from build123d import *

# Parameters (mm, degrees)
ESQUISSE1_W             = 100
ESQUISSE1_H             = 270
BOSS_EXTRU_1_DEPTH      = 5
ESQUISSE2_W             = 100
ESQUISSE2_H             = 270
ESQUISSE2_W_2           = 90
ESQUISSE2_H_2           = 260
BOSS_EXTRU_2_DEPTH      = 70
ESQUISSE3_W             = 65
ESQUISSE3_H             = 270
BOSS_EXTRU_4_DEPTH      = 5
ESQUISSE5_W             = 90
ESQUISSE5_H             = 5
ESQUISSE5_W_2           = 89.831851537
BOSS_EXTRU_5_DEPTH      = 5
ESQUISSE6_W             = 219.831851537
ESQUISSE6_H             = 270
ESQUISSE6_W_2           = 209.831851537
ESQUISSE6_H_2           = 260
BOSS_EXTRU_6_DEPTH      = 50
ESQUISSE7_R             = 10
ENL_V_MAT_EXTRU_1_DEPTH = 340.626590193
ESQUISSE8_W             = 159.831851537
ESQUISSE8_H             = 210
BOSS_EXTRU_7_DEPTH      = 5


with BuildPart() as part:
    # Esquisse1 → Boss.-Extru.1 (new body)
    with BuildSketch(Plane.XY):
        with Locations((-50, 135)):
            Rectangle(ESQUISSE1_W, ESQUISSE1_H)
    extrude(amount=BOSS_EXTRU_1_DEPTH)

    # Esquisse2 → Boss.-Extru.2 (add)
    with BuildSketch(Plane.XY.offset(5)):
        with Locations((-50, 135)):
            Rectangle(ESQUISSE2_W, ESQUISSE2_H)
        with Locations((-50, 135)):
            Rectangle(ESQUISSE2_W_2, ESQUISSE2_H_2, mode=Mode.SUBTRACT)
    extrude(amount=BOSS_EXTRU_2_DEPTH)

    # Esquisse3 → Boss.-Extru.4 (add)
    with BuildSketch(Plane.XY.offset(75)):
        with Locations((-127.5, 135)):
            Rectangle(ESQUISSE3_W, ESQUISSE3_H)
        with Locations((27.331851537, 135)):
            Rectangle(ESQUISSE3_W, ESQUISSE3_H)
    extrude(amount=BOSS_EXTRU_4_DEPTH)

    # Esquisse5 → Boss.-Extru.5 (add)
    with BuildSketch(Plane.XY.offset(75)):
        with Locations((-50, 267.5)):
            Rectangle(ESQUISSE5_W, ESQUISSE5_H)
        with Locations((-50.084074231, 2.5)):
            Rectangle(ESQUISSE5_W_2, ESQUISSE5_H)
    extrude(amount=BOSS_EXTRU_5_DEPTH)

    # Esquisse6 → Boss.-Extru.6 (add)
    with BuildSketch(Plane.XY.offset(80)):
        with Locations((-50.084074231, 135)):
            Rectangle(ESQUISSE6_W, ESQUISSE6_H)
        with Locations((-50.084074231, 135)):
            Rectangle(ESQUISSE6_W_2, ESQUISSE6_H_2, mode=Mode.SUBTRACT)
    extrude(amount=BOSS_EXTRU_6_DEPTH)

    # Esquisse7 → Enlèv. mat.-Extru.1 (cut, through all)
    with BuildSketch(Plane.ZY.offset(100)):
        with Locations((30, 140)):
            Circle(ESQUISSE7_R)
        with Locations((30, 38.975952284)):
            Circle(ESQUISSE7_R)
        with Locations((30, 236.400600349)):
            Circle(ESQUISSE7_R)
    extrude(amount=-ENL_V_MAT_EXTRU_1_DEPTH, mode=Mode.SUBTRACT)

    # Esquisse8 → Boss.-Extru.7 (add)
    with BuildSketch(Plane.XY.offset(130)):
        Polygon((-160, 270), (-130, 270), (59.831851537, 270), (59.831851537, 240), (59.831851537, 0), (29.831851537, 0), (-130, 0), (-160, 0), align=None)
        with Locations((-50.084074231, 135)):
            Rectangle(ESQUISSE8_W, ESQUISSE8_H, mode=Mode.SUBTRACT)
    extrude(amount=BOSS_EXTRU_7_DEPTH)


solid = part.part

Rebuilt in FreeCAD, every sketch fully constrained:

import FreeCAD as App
import Part
import Sketcher
from FreeCAD import Vector
Q = App.Units.Quantity


def add_polygon(sketch, points):
    """Adds a closed chain of lines whose ends are joined by coincident constraints."""
    first, n = sketch.GeometryCount, len(points)
    for a, b in zip(points, points[1:] + points[:1]):
        sketch.addGeometry(Part.LineSegment(App.Vector(*a, 0), App.Vector(*b, 0)), False)
    for i in range(n):
        sketch.addConstraint(Sketcher.Constraint("Coincident", first + i, 2, first + (i + 1) % n, 1))

doc = App.newDocument("Part")
body = doc.addObject("PartDesign::Body", "Body")

# Sketch on XY plane
sketch1 = body.newObject("Sketcher::SketchObject", "Sketch")
sketch1.AttachmentSupport = (doc.getObject("XY_Plane"), [""])
sketch1.MapMode = "FlatFace"
add_polygon(sketch1, [(-100, 270), (-100, 0), (0, 0), (0, 270)])  # lines 0-3
sketch1.addConstraint(Sketcher.Constraint("Vertical", 0))
sketch1.addConstraint(Sketcher.Constraint("Horizontal", 1))
sketch1.addConstraint(Sketcher.Constraint("Vertical", 2))
sketch1.addConstraint(Sketcher.Constraint("Horizontal", 3))
sketch1.addConstraint(Sketcher.Constraint("Coincident", 1, 2, -1, 1))
sketch1.addConstraint(Sketcher.Constraint("DistanceX", 1, 1, 1, 2, Q("100 mm")))
sketch1.addConstraint(Sketcher.Constraint("DistanceY", 0, 2, 0, 1, Q("270 mm")))
pad1 = body.newObject("PartDesign::Pad", "Pad")
pad1.Profile = sketch1
pad1.Length = 5

# Sketch on XY plane
sketch2 = body.newObject("Sketcher::SketchObject", "Sketch001")
sketch2.AttachmentSupport = (doc.getObject("XY_Plane"), [""])
sketch2.MapMode = "FlatFace"
sketch2.AttachmentOffset = App.Placement(Vector(0, 0, 5), App.Rotation())
add_polygon(sketch2, [(-100, 270), (-100, 0), (0, 0), (0, 270)])  # lines 0-3
add_polygon(sketch2, [(-5, 5), (-95, 5), (-95, 265), (-5, 265)])  # lines 4-7
sketch2.addConstraint(Sketcher.Constraint("Vertical", 0))
sketch2.addConstraint(Sketcher.Constraint("Horizontal", 1))
sketch2.addConstraint(Sketcher.Constraint("Vertical", 2))
sketch2.addConstraint(Sketcher.Constraint("Horizontal", 3))
sketch2.addConstraint(Sketcher.Constraint("Horizontal", 4))
sketch2.addConstraint(Sketcher.Constraint("Vertical", 5))
sketch2.addConstraint(Sketcher.Constraint("Horizontal", 6))
sketch2.addConstraint(Sketcher.Constraint("Vertical", 7))
sketch2.addConstraint(Sketcher.Constraint("Coincident", 1, 2, -1, 1))
sketch2.addConstraint(Sketcher.Constraint("DistanceX", 1, 1, 1, 2, Q("100 mm")))
sketch2.addConstraint(Sketcher.Constraint("DistanceX", 4, 2, 4, 1, Q("90 mm")))
sketch2.addConstraint(Sketcher.Constraint("DistanceY", 0, 2, 0, 1, Q("270 mm")))
sketch2.addConstraint(Sketcher.Constraint("DistanceY", 5, 1, 5, 2, Q("260 mm")))
sketch2.addConstraint(Sketcher.Constraint("DistanceX", 4, 2, -1, 1, Q("95 mm")))
sketch2.addConstraint(Sketcher.Constraint("DistanceY", -1, 1, 4, 2, Q("5 mm")))
pad2 = body.newObject("PartDesign::Pad", "Pad001")
pad2.Profile = sketch2
pad2.Length = 70

# Sketch on XY plane
sketch3 = body.newObject("Sketcher::SketchObject", "Sketch002")
sketch3.AttachmentSupport = (doc.getObject("XY_Plane"), [""])
sketch3.MapMode = "FlatFace"
sketch3.AttachmentOffset = App.Placement(Vector(0, 0, 75), App.Rotation())
add_polygon(sketch3, [(-160, 270), (-160, 0), (-95, 0), (-95, 270)])  # lines 0-3
add_polygon(sketch3, [(-5.168148, 270), (-5.168148, 0), (59.831852, 0), (59.831852, 270)])  # lines 4-7
sketch3.addConstraint(Sketcher.Constraint("Vertical", 0))
sketch3.addConstraint(Sketcher.Constraint("Horizontal", 1))
sketch3.addConstraint(Sketcher.Constraint("Vertical", 2))
sketch3.addConstraint(Sketcher.Constraint("Horizontal", 3))
sketch3.addConstraint(Sketcher.Constraint("Vertical", 4))
sketch3.addConstraint(Sketcher.Constraint("Horizontal", 5))
sketch3.addConstraint(Sketcher.Constraint("Vertical", 6))
sketch3.addConstraint(Sketcher.Constraint("Horizontal", 7))
sketch3.addConstraint(Sketcher.Constraint("PointOnObject", 0, 2, -1))
sketch3.addConstraint(Sketcher.Constraint("PointOnObject", 4, 2, -1))
sketch3.addConstraint(Sketcher.Constraint("Horizontal", 3, 2, 6, 2))
sketch3.addConstraint(Sketcher.Constraint("Equal", 3, 5))
sketch3.addConstraint(Sketcher.Constraint("DistanceX", 1, 1, 1, 2, Q("65 mm")))
sketch3.addConstraint(Sketcher.Constraint("DistanceY", 0, 2, 0, 1, Q("270 mm")))
sketch3.addConstraint(Sketcher.Constraint("DistanceX", 0, 2, -1, 1, Q("160 mm")))
sketch3.addConstraint(Sketcher.Constraint("DistanceX", 4, 2, -1, 1, Q("5.168148 mm")))
pad3 = body.newObject("PartDesign::Pad", "Pad002")
pad3.Profile = sketch3
pad3.Length = 5

# Sketch on XY plane
sketch4 = body.newObject("Sketcher::SketchObject", "Sketch003")
sketch4.AttachmentSupport = (doc.getObject("XY_Plane"), [""])
sketch4.MapMode = "FlatFace"
sketch4.AttachmentOffset = App.Placement(Vector(0, 0, 75), App.Rotation())
add_polygon(sketch4, [(-95, 270), (-95, 265), (-5, 265), (-5, 270)])  # lines 0-3
add_polygon(sketch4, [(-95, 5), (-95, 0), (-5.168148, 0), (-5.168148, 5)])  # lines 4-7
sketch4.addConstraint(Sketcher.Constraint("Vertical", 0))
sketch4.addConstraint(Sketcher.Constraint("Horizontal", 1))
sketch4.addConstraint(Sketcher.Constraint("Vertical", 2))
sketch4.addConstraint(Sketcher.Constraint("Horizontal", 3))
sketch4.addConstraint(Sketcher.Constraint("Vertical", 4))
sketch4.addConstraint(Sketcher.Constraint("Horizontal", 5))
sketch4.addConstraint(Sketcher.Constraint("Vertical", 6))
sketch4.addConstraint(Sketcher.Constraint("Horizontal", 7))
sketch4.addConstraint(Sketcher.Constraint("PointOnObject", 4, 2, -1))
sketch4.addConstraint(Sketcher.Constraint("Vertical", 3, 2, 4, 2))
sketch4.addConstraint(Sketcher.Constraint("Equal", 2, 4))
sketch4.addConstraint(Sketcher.Constraint("DistanceX", 1, 1, 1, 2, Q("90 mm")))
sketch4.addConstraint(Sketcher.Constraint("DistanceY", 0, 2, 0, 1, Q("5 mm")))
sketch4.addConstraint(Sketcher.Constraint("DistanceX", 0, 2, -1, 1, Q("95 mm")))
sketch4.addConstraint(Sketcher.Constraint("DistanceY", -1, 1, 0, 2, Q("265 mm")))
sketch4.addConstraint(Sketcher.Constraint("DistanceX", 5, 1, 5, 2, Q("89.831852 mm")))
pad4 = body.newObject("PartDesign::Pad", "Pad003")
pad4.Profile = sketch4
pad4.Length = 5

# Sketch on XY plane
sketch5 = body.newObject("Sketcher::SketchObject", "Sketch004")
sketch5.AttachmentSupport = (doc.getObject("XY_Plane"), [""])
sketch5.MapMode = "FlatFace"
sketch5.AttachmentOffset = App.Placement(Vector(0, 0, 80), App.Rotation())
add_polygon(sketch5, [(-160, 270), (-160, 0), (59.831852, 0), (59.831852, 270)])  # lines 0-3
add_polygon(sketch5, [(54.831852, 5), (-155, 5), (-155, 265), (54.831852, 265)])  # lines 4-7
sketch5.addConstraint(Sketcher.Constraint("Vertical", 0))
sketch5.addConstraint(Sketcher.Constraint("Horizontal", 1))
sketch5.addConstraint(Sketcher.Constraint("Vertical", 2))
sketch5.addConstraint(Sketcher.Constraint("Horizontal", 3))
sketch5.addConstraint(Sketcher.Constraint("Horizontal", 4))
sketch5.addConstraint(Sketcher.Constraint("Vertical", 5))
sketch5.addConstraint(Sketcher.Constraint("Horizontal", 6))
sketch5.addConstraint(Sketcher.Constraint("Vertical", 7))
sketch5.addConstraint(Sketcher.Constraint("PointOnObject", 0, 2, -1))
sketch5.addConstraint(Sketcher.Constraint("DistanceY", 0, 2, 0, 1, Q("270 mm")))
sketch5.addConstraint(Sketcher.Constraint("DistanceY", 5, 1, 5, 2, Q("260 mm")))
sketch5.addConstraint(Sketcher.Constraint("DistanceX", 0, 2, -1, 1, Q("160 mm")))
sketch5.addConstraint(Sketcher.Constraint("DistanceX", 4, 2, -1, 1, Q("155 mm")))
sketch5.addConstraint(Sketcher.Constraint("DistanceY", -1, 1, 4, 2, Q("5 mm")))
sketch5.addConstraint(Sketcher.Constraint("DistanceX", 6, 2, 2, 2, Q("5 mm")))
sketch5.addConstraint(Sketcher.Constraint("DistanceX", 1, 1, 1, 2, Q("219.831852 mm")))
pad5 = body.newObject("PartDesign::Pad", "Pad004")
pad5.Profile = sketch5
pad5.Length = 50

# Sketch on YZ plane
sketch6 = body.newObject("Sketcher::SketchObject", "Sketch005")
sketch6.AttachmentSupport = (doc.getObject("YZ_Plane"), [""])
sketch6.MapMode = "FlatFace"
sketch6.AttachmentOffset = App.Placement(Vector(0, 0, -100), App.Rotation())
sketch6.addGeometry(Part.Circle(Vector(140, 30, 0), Vector(0, 0, 1), 10), False)
sketch6.addGeometry(Part.Circle(Vector(38.975952, 30, 0), Vector(0, 0, 1), 10), False)
sketch6.addGeometry(Part.Circle(Vector(236.4006, 30, 0), Vector(0, 0, 1), 10), False)
sketch6.addConstraint(Sketcher.Constraint("Equal", 0, 1))
sketch6.addConstraint(Sketcher.Constraint("Equal", 1, 2))
sketch6.addConstraint(Sketcher.Constraint("Horizontal", 0, 3, 1, 3))
sketch6.addConstraint(Sketcher.Constraint("Horizontal", 1, 3, 2, 3))
sketch6.addConstraint(Sketcher.Constraint("Diameter", 0, Q("20 mm")))
sketch6.addConstraint(Sketcher.Constraint("DistanceX", -1, 1, 0, 3, Q("140 mm")))
sketch6.addConstraint(Sketcher.Constraint("DistanceY", -1, 1, 0, 3, Q("30 mm")))
sketch6.addConstraint(Sketcher.Constraint("DistanceX", -1, 1, 2, 3, Q("236.4006 mm")))
sketch6.addConstraint(Sketcher.Constraint("DistanceX", 1, 3, 2, 3, Q("197.424648 mm")))
pocket1 = body.newObject("PartDesign::Pocket", "Pocket")
pocket1.Profile = sketch6
pocket1.Type = "ThroughAll"
pocket1.Reversed = True

# Sketch on XY plane
sketch7 = body.newObject("Sketcher::SketchObject", "Sketch006")
sketch7.AttachmentSupport = (doc.getObject("XY_Plane"), [""])
sketch7.MapMode = "FlatFace"
sketch7.AttachmentOffset = App.Placement(Vector(0, 0, 130), App.Rotation())
add_polygon(sketch7, [(59.831852, 270), (-160, 270), (-160, 0), (59.831852, 0)])  # lines 0-3
add_polygon(sketch7, [(-130, 30), (-130, 240), (29.831852, 240), (29.831852, 30)])  # lines 4-7
sketch7.addConstraint(Sketcher.Constraint("Horizontal", 0))
sketch7.addConstraint(Sketcher.Constraint("Vertical", 1))
sketch7.addConstraint(Sketcher.Constraint("Horizontal", 2))
sketch7.addConstraint(Sketcher.Constraint("Vertical", 3))
sketch7.addConstraint(Sketcher.Constraint("Vertical", 4))
sketch7.addConstraint(Sketcher.Constraint("Horizontal", 5))
sketch7.addConstraint(Sketcher.Constraint("Vertical", 6))
sketch7.addConstraint(Sketcher.Constraint("Horizontal", 7))
sketch7.addConstraint(Sketcher.Constraint("PointOnObject", 1, 2, -1))
sketch7.addConstraint(Sketcher.Constraint("DistanceY", 1, 2, 1, 1, Q("270 mm")))
sketch7.addConstraint(Sketcher.Constraint("DistanceY", 4, 1, 4, 2, Q("210 mm")))
sketch7.addConstraint(Sketcher.Constraint("DistanceX", 0, 2, -1, 1, Q("160 mm")))
sketch7.addConstraint(Sketcher.Constraint("DistanceX", 4, 2, -1, 1, Q("130 mm")))
sketch7.addConstraint(Sketcher.Constraint("DistanceY", -1, 1, 4, 2, Q("240 mm")))
sketch7.addConstraint(Sketcher.Constraint("DistanceX", 5, 2, 3, 2, Q("30 mm")))
sketch7.addConstraint(Sketcher.Constraint("DistanceX", 0, 2, 0, 1, Q("219.831852 mm")))
pad6 = body.newObject("PartDesign::Pad", "Pad005")
pad6.Profile = sketch7
pad6.Length = 5

doc.recompute()
